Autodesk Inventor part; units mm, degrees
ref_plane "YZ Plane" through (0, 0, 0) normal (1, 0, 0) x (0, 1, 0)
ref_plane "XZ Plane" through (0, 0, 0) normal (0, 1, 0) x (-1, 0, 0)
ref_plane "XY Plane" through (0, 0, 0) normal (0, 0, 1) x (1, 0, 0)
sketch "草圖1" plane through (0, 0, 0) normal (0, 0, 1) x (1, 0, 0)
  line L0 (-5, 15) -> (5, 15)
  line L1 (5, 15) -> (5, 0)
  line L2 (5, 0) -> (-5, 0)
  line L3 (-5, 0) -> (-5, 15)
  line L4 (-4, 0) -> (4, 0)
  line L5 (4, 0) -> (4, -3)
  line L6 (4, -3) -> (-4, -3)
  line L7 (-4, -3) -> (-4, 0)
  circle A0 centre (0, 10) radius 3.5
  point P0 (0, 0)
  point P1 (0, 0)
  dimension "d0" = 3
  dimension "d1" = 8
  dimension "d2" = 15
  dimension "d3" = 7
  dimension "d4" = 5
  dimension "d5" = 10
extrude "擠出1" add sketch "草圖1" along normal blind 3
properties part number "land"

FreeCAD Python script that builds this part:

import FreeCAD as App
import Part
import Sketcher
from FreeCAD import Vector
Q = App.Units.Quantity


def add_polygon(sketch, points):
    """Adds a closed chain of lines whose ends are joined by coincident constraints."""
    first, n = sketch.GeometryCount, len(points)
    for a, b in zip(points, points[1:] + points[:1]):
        sketch.addGeometry(Part.LineSegment(App.Vector(*a, 0), App.Vector(*b, 0)), False)
    for i in range(n):
        sketch.addConstraint(Sketcher.Constraint("Coincident", first + i, 2, first + (i + 1) % n, 1))

doc = App.newDocument("Part")
body = doc.addObject("PartDesign::Body", "Body")

sketch1 = body.newObject("Sketcher::SketchObject", "Sketch")
sketch1.AttachmentSupport = (doc.getObject("XY_Plane"), [""])
sketch1.MapMode = "FlatFace"
add_polygon(sketch1, [(5, 15), (-5, 15), (-5, 0), (-4, 0), (-4, -3), (4, -3), (4, 0), (5, 0)])
sketch1.addGeometry(Part.Circle(Vector(0, 10, 0), Vector(0, 0, 1), 3.5), False)
sketch1.addConstraint([
    Sketcher.Constraint("Horizontal", 0),
    Sketcher.Constraint("Vertical", 1),
    Sketcher.Constraint("Horizontal", 2),
    Sketcher.Constraint("Vertical", 3),
    Sketcher.Constraint("Horizontal", 4),
    Sketcher.Constraint("Vertical", 5),
    Sketcher.Constraint("Horizontal", 6),
    Sketcher.Constraint("Vertical", 7),
    Sketcher.Constraint("Symmetric", 2, 2, 5, 2, -1, 1),
    Sketcher.Constraint("Symmetric", 1, 2, 6, 2, -2),
    Sketcher.Constraint("PointOnObject", 8, 3, -2),
    Sketcher.Constraint("Diameter", 8, Q("7 mm")),
    Sketcher.Constraint("DistanceX", 0, 2, 0, 1, Q("10 mm")),
    Sketcher.Constraint("DistanceX", 4, 1, 4, 2, Q("8 mm")),
    Sketcher.Constraint("DistanceY", 1, 2, 1, 1, Q("15 mm")),
    Sketcher.Constraint("DistanceY", 3, 2, 3, 1, Q("3 mm")),
    Sketcher.Constraint("DistanceY", -1, 1, 8, 3, Q("10 mm")),
])
pad1 = body.newObject("PartDesign::Pad", "Pad")
pad1.Profile = sketch1
pad1.Length = 3

doc.recompute()
